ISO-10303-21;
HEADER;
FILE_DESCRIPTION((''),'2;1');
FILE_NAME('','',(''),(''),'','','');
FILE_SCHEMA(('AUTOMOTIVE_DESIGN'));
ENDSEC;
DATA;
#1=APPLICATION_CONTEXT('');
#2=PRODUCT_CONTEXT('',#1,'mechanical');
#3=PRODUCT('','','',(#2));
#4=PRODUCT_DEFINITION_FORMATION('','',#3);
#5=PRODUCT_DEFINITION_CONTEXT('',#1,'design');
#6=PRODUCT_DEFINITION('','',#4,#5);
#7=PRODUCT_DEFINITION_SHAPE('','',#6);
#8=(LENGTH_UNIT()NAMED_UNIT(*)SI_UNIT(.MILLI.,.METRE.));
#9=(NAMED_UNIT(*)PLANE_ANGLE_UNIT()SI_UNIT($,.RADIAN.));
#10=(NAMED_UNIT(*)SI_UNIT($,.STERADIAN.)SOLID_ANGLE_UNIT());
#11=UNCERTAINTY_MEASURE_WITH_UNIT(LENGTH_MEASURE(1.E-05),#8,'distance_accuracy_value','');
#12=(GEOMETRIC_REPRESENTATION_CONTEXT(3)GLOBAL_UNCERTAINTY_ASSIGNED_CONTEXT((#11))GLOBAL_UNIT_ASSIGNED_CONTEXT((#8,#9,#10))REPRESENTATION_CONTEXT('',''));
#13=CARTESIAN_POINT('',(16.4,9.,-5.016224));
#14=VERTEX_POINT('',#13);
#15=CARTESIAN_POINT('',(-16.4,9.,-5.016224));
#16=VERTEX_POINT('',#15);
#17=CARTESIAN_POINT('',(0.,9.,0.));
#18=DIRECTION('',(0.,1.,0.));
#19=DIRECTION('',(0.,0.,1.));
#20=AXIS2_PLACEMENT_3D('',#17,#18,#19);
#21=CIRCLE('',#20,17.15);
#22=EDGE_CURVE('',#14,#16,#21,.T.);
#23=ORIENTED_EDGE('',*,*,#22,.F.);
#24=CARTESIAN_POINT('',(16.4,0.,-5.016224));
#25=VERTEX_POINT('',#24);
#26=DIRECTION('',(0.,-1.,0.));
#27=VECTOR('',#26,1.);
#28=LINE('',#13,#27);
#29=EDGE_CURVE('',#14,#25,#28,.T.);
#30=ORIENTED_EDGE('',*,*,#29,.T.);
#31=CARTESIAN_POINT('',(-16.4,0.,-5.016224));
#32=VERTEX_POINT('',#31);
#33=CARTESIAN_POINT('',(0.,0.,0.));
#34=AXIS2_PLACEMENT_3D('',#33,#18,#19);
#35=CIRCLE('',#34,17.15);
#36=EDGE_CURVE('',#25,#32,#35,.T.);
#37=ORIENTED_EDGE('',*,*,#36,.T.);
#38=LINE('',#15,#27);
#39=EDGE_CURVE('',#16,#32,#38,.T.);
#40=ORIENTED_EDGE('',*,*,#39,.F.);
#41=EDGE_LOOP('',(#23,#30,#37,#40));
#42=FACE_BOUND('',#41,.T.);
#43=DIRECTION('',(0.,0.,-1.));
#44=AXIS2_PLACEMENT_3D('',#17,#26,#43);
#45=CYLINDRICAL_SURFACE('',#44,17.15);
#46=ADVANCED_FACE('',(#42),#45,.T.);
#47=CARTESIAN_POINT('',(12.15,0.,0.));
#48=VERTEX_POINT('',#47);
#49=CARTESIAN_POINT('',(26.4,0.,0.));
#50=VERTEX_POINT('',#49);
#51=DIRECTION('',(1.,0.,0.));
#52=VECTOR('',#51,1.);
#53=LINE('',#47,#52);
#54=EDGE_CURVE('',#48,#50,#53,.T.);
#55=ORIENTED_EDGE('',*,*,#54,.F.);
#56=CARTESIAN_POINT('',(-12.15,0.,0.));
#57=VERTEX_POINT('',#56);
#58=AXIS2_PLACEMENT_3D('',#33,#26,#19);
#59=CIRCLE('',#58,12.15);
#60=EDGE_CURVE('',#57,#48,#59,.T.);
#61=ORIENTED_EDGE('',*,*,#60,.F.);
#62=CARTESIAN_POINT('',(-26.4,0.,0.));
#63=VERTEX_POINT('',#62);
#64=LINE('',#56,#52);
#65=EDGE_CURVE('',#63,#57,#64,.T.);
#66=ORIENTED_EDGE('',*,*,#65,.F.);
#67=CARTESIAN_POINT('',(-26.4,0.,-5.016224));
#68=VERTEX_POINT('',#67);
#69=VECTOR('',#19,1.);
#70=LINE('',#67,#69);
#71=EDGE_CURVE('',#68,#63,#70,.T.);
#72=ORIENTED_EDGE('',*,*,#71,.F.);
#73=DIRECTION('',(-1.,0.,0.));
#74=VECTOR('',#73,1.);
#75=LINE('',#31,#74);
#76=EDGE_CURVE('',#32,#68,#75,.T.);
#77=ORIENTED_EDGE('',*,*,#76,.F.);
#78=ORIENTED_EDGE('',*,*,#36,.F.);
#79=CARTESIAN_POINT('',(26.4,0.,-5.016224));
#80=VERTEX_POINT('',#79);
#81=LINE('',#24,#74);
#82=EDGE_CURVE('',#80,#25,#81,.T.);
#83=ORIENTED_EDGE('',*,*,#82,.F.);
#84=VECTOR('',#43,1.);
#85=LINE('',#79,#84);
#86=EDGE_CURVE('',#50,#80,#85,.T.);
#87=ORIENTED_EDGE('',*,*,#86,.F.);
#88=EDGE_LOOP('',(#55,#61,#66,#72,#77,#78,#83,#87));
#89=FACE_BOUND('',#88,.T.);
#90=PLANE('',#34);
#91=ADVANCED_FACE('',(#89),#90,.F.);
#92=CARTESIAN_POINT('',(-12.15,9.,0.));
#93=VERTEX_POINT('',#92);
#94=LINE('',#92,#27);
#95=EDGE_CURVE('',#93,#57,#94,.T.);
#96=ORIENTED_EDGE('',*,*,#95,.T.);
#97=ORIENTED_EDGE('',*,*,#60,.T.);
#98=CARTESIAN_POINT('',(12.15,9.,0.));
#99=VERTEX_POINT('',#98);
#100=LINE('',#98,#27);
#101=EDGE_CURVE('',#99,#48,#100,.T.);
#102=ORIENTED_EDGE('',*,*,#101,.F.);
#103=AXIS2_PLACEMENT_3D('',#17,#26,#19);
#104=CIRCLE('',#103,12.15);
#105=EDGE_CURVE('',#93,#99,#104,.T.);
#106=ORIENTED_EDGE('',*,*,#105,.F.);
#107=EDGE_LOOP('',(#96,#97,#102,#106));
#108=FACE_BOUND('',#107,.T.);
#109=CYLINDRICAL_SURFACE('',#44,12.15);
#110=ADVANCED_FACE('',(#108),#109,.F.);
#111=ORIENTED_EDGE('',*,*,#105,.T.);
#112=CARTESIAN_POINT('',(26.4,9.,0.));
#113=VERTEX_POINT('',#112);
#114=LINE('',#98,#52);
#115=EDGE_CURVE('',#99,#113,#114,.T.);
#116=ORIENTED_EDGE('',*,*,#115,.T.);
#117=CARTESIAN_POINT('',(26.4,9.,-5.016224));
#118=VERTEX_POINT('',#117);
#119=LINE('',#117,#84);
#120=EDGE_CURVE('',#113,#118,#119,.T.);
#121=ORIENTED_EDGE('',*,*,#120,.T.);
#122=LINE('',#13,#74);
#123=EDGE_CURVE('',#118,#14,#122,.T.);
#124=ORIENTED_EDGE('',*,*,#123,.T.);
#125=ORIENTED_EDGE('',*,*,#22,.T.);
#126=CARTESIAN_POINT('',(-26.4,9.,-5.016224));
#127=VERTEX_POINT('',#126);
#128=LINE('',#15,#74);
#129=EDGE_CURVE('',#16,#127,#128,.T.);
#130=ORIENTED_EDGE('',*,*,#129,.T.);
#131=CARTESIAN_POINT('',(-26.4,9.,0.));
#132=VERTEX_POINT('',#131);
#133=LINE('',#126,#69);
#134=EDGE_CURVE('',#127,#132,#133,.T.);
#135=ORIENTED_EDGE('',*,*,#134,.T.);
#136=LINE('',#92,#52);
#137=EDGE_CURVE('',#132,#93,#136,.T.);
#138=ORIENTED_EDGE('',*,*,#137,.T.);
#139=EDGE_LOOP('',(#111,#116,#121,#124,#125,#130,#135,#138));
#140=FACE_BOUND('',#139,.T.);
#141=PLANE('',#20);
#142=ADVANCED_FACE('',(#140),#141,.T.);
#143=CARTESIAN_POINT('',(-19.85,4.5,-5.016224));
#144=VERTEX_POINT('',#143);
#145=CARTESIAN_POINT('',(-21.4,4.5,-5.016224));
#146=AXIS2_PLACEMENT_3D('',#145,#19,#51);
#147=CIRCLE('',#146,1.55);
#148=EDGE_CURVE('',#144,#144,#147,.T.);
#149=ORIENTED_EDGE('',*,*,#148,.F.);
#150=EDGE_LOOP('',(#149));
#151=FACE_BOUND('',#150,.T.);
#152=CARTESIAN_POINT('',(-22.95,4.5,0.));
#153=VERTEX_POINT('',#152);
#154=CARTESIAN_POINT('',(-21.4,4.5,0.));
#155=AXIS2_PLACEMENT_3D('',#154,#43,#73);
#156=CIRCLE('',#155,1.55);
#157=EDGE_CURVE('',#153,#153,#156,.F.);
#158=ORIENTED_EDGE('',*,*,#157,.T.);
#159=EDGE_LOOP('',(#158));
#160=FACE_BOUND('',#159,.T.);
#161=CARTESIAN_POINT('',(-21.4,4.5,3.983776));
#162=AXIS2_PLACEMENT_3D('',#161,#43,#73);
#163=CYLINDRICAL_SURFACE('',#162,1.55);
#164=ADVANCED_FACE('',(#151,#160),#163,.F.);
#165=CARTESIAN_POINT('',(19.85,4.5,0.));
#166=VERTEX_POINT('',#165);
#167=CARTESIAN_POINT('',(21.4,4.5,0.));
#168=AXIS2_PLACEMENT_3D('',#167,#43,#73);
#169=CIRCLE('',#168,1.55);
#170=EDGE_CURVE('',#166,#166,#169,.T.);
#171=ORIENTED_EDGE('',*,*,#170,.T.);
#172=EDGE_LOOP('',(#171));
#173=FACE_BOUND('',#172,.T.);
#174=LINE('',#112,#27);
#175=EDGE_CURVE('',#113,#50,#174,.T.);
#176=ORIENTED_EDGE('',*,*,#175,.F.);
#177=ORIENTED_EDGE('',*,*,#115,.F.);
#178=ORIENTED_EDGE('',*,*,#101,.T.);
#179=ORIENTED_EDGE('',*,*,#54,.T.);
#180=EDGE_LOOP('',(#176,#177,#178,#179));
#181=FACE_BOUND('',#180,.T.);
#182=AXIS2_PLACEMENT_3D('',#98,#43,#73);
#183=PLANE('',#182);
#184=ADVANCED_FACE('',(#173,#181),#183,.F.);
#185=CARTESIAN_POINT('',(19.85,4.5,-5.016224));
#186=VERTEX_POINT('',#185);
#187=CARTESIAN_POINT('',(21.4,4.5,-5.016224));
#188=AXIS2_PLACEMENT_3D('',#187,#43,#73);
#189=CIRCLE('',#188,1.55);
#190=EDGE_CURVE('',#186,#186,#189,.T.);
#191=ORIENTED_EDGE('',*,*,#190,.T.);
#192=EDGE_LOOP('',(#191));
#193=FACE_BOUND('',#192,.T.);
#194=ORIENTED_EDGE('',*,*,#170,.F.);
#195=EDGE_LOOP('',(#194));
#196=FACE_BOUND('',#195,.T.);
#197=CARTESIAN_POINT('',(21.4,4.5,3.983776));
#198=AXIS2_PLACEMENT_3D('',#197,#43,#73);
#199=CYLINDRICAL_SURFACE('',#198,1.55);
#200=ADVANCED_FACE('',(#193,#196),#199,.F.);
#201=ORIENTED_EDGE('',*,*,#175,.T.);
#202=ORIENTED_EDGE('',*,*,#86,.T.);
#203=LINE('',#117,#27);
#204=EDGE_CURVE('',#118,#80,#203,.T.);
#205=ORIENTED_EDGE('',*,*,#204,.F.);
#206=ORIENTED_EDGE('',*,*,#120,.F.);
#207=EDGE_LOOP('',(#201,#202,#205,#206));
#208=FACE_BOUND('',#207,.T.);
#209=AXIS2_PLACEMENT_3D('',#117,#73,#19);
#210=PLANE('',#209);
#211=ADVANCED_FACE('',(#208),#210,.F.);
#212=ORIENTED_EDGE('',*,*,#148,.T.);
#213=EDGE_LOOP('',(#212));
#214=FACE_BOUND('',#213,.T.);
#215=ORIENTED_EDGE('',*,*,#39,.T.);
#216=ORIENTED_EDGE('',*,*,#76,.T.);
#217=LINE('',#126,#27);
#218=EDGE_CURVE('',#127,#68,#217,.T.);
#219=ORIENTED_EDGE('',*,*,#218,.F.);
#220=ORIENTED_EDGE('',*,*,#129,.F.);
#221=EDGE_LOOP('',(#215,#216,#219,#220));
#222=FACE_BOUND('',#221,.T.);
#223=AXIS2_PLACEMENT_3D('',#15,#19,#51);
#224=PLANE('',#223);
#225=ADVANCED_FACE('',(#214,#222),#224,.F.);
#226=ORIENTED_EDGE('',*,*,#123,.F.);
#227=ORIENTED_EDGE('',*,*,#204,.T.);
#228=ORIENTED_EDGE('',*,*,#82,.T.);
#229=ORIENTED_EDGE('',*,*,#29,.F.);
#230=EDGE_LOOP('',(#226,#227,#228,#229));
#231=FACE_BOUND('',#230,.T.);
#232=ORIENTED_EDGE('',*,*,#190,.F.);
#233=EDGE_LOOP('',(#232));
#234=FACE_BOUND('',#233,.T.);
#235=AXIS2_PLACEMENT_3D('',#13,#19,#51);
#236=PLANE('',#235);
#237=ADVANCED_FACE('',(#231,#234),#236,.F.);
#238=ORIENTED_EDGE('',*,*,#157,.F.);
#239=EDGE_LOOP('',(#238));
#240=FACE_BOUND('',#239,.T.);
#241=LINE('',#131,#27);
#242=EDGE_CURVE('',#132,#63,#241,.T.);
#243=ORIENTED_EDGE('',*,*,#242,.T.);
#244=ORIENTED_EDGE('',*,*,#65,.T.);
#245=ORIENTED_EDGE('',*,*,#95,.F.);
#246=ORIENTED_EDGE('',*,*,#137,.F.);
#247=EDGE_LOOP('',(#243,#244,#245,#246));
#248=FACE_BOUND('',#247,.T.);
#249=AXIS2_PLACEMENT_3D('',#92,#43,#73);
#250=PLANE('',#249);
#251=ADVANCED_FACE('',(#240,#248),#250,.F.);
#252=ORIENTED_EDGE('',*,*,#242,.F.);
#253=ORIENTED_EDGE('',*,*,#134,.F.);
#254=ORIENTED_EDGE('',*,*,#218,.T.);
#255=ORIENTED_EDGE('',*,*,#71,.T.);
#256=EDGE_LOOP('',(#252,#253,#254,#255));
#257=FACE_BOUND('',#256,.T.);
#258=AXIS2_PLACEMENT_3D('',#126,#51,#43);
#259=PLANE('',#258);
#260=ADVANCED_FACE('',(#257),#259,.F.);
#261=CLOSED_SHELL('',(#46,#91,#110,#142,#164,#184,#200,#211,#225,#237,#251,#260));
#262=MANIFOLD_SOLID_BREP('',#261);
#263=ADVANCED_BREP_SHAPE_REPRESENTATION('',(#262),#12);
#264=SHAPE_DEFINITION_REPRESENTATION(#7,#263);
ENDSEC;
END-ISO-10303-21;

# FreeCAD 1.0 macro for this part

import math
import FreeCAD as App
import Part
import Sketcher

V = App.Vector
Q = App.Units.Quantity

doc = App.newDocument("Part")
body = doc.addObject("PartDesign::Body", "Body")

sketch1 = doc.addObject("Sketcher::SketchObject", "Sketch")
body.addObject(sketch1)
sketch1.AttachmentSupport = (doc.XZ_Plane, [""])
sketch1.MapMode = "FlatFace"
sketch1.addGeometry([
    Part.LineSegment(V(26, -5, 0), V(16, -5, 0)),
    Part.ArcOfCircle(Part.Circle(V(0, 0, 0), V(0, 0, 1), 17), math.radians(-163), math.radians(-17)),
    Part.LineSegment(V(-16, -5, 0), V(-26, -5, 0)),
    Part.LineSegment(V(-26, -5, 0), V(-26, 0, 0)),
    Part.LineSegment(V(-26, 0, 0), V(-12, 0, 0)),
    Part.ArcOfCircle(Part.Circle(V(0, 0, 0), V(0, 0, 1), 12), math.radians(180), math.radians(360)),
    Part.LineSegment(V(12, 0, 0), V(26, 0, 0)),
    Part.LineSegment(V(26, 0, 0), V(26, -5, 0)),
], False)
sketch1.addConstraint([
    Sketcher.Constraint("Coincident", 0, 2, 1, 2),
    Sketcher.Constraint("Coincident", 1, 1, 2, 1),
    Sketcher.Constraint("Coincident", 2, 2, 3, 1),
    Sketcher.Constraint("Coincident", 3, 2, 4, 1),
    Sketcher.Constraint("Coincident", 4, 2, 5, 1),
    Sketcher.Constraint("Coincident", 5, 2, 6, 1),
    Sketcher.Constraint("Coincident", 6, 2, 7, 1),
    Sketcher.Constraint("Coincident", 7, 2, 0, 1),
    Sketcher.Constraint("Horizontal", 0),
    Sketcher.Constraint("Horizontal", 2),
    Sketcher.Constraint("Vertical", 3),
    Sketcher.Constraint("Horizontal", 4),
    Sketcher.Constraint("Horizontal", 6),
    Sketcher.Constraint("Vertical", 7),
    Sketcher.Constraint("Coincident", 1, 3, -1, 1),
    Sketcher.Constraint("Coincident", 5, 3, -1, 1),
    Sketcher.Constraint("Symmetric", 3, 2, 6, 2, -1, 1),
    Sketcher.Constraint("PointOnObject", 3, 2, -1),
    Sketcher.Constraint("Horizontal", 0, 2, 1, 1),
    Sketcher.Constraint("DistanceX", 0, 2, 0, 1, Q("10 mm")),
    Sketcher.Constraint("Radius", 1, Q("17.15 mm")),
    Sketcher.Constraint("Radius", 5, Q("12.15 mm")),
    Sketcher.Constraint("DistanceX", 4, 1, 4, 2, Q("14.25 mm")),
])
pad1 = doc.addObject("PartDesign::Pad", "Pad")
body.addObject(pad1)
pad1.Profile = sketch1
pad1.Length = 9
pad1.Reversed = True

sketch2 = doc.addObject("Sketcher::SketchObject", "Sketch001")
body.addObject(sketch2)
sketch2.AttachmentSupport = (doc.XY_Plane, [""])
sketch2.MapMode = "FlatFace"
sketch2.AttachmentOffset = App.Placement(V(0, 0, -5.016224), App.Rotation())
sketch2.addGeometry(Part.Circle(V(21.4, 4.5, 0), V(0, 0, 1), 1.6), False)
sketch2.addConstraint([
    Sketcher.Constraint("Diameter", 0, Q("3.1 mm")),
    Sketcher.Constraint("DistanceX", -1, 1, 0, 3, Q("21.4 mm")),
    Sketcher.Constraint("DistanceY", -1, 1, 0, 3, Q("4.5 mm")),
])
pocket1 = doc.addObject("PartDesign::Pocket", "Pocket")
body.addObject(pocket1)
pocket1.Profile = sketch2
pocket1.Length = 9
pocket1.Reversed = True
doc.recompute()

mirrored = doc.addObject("PartDesign::Mirrored", "Mirrored")
body.addObject(mirrored)
mirrored.Originals = [pocket1]
mirrored.MirrorPlane = (doc.YZ_Plane, [""])
body.Tip = mirrored

doc.recompute()
